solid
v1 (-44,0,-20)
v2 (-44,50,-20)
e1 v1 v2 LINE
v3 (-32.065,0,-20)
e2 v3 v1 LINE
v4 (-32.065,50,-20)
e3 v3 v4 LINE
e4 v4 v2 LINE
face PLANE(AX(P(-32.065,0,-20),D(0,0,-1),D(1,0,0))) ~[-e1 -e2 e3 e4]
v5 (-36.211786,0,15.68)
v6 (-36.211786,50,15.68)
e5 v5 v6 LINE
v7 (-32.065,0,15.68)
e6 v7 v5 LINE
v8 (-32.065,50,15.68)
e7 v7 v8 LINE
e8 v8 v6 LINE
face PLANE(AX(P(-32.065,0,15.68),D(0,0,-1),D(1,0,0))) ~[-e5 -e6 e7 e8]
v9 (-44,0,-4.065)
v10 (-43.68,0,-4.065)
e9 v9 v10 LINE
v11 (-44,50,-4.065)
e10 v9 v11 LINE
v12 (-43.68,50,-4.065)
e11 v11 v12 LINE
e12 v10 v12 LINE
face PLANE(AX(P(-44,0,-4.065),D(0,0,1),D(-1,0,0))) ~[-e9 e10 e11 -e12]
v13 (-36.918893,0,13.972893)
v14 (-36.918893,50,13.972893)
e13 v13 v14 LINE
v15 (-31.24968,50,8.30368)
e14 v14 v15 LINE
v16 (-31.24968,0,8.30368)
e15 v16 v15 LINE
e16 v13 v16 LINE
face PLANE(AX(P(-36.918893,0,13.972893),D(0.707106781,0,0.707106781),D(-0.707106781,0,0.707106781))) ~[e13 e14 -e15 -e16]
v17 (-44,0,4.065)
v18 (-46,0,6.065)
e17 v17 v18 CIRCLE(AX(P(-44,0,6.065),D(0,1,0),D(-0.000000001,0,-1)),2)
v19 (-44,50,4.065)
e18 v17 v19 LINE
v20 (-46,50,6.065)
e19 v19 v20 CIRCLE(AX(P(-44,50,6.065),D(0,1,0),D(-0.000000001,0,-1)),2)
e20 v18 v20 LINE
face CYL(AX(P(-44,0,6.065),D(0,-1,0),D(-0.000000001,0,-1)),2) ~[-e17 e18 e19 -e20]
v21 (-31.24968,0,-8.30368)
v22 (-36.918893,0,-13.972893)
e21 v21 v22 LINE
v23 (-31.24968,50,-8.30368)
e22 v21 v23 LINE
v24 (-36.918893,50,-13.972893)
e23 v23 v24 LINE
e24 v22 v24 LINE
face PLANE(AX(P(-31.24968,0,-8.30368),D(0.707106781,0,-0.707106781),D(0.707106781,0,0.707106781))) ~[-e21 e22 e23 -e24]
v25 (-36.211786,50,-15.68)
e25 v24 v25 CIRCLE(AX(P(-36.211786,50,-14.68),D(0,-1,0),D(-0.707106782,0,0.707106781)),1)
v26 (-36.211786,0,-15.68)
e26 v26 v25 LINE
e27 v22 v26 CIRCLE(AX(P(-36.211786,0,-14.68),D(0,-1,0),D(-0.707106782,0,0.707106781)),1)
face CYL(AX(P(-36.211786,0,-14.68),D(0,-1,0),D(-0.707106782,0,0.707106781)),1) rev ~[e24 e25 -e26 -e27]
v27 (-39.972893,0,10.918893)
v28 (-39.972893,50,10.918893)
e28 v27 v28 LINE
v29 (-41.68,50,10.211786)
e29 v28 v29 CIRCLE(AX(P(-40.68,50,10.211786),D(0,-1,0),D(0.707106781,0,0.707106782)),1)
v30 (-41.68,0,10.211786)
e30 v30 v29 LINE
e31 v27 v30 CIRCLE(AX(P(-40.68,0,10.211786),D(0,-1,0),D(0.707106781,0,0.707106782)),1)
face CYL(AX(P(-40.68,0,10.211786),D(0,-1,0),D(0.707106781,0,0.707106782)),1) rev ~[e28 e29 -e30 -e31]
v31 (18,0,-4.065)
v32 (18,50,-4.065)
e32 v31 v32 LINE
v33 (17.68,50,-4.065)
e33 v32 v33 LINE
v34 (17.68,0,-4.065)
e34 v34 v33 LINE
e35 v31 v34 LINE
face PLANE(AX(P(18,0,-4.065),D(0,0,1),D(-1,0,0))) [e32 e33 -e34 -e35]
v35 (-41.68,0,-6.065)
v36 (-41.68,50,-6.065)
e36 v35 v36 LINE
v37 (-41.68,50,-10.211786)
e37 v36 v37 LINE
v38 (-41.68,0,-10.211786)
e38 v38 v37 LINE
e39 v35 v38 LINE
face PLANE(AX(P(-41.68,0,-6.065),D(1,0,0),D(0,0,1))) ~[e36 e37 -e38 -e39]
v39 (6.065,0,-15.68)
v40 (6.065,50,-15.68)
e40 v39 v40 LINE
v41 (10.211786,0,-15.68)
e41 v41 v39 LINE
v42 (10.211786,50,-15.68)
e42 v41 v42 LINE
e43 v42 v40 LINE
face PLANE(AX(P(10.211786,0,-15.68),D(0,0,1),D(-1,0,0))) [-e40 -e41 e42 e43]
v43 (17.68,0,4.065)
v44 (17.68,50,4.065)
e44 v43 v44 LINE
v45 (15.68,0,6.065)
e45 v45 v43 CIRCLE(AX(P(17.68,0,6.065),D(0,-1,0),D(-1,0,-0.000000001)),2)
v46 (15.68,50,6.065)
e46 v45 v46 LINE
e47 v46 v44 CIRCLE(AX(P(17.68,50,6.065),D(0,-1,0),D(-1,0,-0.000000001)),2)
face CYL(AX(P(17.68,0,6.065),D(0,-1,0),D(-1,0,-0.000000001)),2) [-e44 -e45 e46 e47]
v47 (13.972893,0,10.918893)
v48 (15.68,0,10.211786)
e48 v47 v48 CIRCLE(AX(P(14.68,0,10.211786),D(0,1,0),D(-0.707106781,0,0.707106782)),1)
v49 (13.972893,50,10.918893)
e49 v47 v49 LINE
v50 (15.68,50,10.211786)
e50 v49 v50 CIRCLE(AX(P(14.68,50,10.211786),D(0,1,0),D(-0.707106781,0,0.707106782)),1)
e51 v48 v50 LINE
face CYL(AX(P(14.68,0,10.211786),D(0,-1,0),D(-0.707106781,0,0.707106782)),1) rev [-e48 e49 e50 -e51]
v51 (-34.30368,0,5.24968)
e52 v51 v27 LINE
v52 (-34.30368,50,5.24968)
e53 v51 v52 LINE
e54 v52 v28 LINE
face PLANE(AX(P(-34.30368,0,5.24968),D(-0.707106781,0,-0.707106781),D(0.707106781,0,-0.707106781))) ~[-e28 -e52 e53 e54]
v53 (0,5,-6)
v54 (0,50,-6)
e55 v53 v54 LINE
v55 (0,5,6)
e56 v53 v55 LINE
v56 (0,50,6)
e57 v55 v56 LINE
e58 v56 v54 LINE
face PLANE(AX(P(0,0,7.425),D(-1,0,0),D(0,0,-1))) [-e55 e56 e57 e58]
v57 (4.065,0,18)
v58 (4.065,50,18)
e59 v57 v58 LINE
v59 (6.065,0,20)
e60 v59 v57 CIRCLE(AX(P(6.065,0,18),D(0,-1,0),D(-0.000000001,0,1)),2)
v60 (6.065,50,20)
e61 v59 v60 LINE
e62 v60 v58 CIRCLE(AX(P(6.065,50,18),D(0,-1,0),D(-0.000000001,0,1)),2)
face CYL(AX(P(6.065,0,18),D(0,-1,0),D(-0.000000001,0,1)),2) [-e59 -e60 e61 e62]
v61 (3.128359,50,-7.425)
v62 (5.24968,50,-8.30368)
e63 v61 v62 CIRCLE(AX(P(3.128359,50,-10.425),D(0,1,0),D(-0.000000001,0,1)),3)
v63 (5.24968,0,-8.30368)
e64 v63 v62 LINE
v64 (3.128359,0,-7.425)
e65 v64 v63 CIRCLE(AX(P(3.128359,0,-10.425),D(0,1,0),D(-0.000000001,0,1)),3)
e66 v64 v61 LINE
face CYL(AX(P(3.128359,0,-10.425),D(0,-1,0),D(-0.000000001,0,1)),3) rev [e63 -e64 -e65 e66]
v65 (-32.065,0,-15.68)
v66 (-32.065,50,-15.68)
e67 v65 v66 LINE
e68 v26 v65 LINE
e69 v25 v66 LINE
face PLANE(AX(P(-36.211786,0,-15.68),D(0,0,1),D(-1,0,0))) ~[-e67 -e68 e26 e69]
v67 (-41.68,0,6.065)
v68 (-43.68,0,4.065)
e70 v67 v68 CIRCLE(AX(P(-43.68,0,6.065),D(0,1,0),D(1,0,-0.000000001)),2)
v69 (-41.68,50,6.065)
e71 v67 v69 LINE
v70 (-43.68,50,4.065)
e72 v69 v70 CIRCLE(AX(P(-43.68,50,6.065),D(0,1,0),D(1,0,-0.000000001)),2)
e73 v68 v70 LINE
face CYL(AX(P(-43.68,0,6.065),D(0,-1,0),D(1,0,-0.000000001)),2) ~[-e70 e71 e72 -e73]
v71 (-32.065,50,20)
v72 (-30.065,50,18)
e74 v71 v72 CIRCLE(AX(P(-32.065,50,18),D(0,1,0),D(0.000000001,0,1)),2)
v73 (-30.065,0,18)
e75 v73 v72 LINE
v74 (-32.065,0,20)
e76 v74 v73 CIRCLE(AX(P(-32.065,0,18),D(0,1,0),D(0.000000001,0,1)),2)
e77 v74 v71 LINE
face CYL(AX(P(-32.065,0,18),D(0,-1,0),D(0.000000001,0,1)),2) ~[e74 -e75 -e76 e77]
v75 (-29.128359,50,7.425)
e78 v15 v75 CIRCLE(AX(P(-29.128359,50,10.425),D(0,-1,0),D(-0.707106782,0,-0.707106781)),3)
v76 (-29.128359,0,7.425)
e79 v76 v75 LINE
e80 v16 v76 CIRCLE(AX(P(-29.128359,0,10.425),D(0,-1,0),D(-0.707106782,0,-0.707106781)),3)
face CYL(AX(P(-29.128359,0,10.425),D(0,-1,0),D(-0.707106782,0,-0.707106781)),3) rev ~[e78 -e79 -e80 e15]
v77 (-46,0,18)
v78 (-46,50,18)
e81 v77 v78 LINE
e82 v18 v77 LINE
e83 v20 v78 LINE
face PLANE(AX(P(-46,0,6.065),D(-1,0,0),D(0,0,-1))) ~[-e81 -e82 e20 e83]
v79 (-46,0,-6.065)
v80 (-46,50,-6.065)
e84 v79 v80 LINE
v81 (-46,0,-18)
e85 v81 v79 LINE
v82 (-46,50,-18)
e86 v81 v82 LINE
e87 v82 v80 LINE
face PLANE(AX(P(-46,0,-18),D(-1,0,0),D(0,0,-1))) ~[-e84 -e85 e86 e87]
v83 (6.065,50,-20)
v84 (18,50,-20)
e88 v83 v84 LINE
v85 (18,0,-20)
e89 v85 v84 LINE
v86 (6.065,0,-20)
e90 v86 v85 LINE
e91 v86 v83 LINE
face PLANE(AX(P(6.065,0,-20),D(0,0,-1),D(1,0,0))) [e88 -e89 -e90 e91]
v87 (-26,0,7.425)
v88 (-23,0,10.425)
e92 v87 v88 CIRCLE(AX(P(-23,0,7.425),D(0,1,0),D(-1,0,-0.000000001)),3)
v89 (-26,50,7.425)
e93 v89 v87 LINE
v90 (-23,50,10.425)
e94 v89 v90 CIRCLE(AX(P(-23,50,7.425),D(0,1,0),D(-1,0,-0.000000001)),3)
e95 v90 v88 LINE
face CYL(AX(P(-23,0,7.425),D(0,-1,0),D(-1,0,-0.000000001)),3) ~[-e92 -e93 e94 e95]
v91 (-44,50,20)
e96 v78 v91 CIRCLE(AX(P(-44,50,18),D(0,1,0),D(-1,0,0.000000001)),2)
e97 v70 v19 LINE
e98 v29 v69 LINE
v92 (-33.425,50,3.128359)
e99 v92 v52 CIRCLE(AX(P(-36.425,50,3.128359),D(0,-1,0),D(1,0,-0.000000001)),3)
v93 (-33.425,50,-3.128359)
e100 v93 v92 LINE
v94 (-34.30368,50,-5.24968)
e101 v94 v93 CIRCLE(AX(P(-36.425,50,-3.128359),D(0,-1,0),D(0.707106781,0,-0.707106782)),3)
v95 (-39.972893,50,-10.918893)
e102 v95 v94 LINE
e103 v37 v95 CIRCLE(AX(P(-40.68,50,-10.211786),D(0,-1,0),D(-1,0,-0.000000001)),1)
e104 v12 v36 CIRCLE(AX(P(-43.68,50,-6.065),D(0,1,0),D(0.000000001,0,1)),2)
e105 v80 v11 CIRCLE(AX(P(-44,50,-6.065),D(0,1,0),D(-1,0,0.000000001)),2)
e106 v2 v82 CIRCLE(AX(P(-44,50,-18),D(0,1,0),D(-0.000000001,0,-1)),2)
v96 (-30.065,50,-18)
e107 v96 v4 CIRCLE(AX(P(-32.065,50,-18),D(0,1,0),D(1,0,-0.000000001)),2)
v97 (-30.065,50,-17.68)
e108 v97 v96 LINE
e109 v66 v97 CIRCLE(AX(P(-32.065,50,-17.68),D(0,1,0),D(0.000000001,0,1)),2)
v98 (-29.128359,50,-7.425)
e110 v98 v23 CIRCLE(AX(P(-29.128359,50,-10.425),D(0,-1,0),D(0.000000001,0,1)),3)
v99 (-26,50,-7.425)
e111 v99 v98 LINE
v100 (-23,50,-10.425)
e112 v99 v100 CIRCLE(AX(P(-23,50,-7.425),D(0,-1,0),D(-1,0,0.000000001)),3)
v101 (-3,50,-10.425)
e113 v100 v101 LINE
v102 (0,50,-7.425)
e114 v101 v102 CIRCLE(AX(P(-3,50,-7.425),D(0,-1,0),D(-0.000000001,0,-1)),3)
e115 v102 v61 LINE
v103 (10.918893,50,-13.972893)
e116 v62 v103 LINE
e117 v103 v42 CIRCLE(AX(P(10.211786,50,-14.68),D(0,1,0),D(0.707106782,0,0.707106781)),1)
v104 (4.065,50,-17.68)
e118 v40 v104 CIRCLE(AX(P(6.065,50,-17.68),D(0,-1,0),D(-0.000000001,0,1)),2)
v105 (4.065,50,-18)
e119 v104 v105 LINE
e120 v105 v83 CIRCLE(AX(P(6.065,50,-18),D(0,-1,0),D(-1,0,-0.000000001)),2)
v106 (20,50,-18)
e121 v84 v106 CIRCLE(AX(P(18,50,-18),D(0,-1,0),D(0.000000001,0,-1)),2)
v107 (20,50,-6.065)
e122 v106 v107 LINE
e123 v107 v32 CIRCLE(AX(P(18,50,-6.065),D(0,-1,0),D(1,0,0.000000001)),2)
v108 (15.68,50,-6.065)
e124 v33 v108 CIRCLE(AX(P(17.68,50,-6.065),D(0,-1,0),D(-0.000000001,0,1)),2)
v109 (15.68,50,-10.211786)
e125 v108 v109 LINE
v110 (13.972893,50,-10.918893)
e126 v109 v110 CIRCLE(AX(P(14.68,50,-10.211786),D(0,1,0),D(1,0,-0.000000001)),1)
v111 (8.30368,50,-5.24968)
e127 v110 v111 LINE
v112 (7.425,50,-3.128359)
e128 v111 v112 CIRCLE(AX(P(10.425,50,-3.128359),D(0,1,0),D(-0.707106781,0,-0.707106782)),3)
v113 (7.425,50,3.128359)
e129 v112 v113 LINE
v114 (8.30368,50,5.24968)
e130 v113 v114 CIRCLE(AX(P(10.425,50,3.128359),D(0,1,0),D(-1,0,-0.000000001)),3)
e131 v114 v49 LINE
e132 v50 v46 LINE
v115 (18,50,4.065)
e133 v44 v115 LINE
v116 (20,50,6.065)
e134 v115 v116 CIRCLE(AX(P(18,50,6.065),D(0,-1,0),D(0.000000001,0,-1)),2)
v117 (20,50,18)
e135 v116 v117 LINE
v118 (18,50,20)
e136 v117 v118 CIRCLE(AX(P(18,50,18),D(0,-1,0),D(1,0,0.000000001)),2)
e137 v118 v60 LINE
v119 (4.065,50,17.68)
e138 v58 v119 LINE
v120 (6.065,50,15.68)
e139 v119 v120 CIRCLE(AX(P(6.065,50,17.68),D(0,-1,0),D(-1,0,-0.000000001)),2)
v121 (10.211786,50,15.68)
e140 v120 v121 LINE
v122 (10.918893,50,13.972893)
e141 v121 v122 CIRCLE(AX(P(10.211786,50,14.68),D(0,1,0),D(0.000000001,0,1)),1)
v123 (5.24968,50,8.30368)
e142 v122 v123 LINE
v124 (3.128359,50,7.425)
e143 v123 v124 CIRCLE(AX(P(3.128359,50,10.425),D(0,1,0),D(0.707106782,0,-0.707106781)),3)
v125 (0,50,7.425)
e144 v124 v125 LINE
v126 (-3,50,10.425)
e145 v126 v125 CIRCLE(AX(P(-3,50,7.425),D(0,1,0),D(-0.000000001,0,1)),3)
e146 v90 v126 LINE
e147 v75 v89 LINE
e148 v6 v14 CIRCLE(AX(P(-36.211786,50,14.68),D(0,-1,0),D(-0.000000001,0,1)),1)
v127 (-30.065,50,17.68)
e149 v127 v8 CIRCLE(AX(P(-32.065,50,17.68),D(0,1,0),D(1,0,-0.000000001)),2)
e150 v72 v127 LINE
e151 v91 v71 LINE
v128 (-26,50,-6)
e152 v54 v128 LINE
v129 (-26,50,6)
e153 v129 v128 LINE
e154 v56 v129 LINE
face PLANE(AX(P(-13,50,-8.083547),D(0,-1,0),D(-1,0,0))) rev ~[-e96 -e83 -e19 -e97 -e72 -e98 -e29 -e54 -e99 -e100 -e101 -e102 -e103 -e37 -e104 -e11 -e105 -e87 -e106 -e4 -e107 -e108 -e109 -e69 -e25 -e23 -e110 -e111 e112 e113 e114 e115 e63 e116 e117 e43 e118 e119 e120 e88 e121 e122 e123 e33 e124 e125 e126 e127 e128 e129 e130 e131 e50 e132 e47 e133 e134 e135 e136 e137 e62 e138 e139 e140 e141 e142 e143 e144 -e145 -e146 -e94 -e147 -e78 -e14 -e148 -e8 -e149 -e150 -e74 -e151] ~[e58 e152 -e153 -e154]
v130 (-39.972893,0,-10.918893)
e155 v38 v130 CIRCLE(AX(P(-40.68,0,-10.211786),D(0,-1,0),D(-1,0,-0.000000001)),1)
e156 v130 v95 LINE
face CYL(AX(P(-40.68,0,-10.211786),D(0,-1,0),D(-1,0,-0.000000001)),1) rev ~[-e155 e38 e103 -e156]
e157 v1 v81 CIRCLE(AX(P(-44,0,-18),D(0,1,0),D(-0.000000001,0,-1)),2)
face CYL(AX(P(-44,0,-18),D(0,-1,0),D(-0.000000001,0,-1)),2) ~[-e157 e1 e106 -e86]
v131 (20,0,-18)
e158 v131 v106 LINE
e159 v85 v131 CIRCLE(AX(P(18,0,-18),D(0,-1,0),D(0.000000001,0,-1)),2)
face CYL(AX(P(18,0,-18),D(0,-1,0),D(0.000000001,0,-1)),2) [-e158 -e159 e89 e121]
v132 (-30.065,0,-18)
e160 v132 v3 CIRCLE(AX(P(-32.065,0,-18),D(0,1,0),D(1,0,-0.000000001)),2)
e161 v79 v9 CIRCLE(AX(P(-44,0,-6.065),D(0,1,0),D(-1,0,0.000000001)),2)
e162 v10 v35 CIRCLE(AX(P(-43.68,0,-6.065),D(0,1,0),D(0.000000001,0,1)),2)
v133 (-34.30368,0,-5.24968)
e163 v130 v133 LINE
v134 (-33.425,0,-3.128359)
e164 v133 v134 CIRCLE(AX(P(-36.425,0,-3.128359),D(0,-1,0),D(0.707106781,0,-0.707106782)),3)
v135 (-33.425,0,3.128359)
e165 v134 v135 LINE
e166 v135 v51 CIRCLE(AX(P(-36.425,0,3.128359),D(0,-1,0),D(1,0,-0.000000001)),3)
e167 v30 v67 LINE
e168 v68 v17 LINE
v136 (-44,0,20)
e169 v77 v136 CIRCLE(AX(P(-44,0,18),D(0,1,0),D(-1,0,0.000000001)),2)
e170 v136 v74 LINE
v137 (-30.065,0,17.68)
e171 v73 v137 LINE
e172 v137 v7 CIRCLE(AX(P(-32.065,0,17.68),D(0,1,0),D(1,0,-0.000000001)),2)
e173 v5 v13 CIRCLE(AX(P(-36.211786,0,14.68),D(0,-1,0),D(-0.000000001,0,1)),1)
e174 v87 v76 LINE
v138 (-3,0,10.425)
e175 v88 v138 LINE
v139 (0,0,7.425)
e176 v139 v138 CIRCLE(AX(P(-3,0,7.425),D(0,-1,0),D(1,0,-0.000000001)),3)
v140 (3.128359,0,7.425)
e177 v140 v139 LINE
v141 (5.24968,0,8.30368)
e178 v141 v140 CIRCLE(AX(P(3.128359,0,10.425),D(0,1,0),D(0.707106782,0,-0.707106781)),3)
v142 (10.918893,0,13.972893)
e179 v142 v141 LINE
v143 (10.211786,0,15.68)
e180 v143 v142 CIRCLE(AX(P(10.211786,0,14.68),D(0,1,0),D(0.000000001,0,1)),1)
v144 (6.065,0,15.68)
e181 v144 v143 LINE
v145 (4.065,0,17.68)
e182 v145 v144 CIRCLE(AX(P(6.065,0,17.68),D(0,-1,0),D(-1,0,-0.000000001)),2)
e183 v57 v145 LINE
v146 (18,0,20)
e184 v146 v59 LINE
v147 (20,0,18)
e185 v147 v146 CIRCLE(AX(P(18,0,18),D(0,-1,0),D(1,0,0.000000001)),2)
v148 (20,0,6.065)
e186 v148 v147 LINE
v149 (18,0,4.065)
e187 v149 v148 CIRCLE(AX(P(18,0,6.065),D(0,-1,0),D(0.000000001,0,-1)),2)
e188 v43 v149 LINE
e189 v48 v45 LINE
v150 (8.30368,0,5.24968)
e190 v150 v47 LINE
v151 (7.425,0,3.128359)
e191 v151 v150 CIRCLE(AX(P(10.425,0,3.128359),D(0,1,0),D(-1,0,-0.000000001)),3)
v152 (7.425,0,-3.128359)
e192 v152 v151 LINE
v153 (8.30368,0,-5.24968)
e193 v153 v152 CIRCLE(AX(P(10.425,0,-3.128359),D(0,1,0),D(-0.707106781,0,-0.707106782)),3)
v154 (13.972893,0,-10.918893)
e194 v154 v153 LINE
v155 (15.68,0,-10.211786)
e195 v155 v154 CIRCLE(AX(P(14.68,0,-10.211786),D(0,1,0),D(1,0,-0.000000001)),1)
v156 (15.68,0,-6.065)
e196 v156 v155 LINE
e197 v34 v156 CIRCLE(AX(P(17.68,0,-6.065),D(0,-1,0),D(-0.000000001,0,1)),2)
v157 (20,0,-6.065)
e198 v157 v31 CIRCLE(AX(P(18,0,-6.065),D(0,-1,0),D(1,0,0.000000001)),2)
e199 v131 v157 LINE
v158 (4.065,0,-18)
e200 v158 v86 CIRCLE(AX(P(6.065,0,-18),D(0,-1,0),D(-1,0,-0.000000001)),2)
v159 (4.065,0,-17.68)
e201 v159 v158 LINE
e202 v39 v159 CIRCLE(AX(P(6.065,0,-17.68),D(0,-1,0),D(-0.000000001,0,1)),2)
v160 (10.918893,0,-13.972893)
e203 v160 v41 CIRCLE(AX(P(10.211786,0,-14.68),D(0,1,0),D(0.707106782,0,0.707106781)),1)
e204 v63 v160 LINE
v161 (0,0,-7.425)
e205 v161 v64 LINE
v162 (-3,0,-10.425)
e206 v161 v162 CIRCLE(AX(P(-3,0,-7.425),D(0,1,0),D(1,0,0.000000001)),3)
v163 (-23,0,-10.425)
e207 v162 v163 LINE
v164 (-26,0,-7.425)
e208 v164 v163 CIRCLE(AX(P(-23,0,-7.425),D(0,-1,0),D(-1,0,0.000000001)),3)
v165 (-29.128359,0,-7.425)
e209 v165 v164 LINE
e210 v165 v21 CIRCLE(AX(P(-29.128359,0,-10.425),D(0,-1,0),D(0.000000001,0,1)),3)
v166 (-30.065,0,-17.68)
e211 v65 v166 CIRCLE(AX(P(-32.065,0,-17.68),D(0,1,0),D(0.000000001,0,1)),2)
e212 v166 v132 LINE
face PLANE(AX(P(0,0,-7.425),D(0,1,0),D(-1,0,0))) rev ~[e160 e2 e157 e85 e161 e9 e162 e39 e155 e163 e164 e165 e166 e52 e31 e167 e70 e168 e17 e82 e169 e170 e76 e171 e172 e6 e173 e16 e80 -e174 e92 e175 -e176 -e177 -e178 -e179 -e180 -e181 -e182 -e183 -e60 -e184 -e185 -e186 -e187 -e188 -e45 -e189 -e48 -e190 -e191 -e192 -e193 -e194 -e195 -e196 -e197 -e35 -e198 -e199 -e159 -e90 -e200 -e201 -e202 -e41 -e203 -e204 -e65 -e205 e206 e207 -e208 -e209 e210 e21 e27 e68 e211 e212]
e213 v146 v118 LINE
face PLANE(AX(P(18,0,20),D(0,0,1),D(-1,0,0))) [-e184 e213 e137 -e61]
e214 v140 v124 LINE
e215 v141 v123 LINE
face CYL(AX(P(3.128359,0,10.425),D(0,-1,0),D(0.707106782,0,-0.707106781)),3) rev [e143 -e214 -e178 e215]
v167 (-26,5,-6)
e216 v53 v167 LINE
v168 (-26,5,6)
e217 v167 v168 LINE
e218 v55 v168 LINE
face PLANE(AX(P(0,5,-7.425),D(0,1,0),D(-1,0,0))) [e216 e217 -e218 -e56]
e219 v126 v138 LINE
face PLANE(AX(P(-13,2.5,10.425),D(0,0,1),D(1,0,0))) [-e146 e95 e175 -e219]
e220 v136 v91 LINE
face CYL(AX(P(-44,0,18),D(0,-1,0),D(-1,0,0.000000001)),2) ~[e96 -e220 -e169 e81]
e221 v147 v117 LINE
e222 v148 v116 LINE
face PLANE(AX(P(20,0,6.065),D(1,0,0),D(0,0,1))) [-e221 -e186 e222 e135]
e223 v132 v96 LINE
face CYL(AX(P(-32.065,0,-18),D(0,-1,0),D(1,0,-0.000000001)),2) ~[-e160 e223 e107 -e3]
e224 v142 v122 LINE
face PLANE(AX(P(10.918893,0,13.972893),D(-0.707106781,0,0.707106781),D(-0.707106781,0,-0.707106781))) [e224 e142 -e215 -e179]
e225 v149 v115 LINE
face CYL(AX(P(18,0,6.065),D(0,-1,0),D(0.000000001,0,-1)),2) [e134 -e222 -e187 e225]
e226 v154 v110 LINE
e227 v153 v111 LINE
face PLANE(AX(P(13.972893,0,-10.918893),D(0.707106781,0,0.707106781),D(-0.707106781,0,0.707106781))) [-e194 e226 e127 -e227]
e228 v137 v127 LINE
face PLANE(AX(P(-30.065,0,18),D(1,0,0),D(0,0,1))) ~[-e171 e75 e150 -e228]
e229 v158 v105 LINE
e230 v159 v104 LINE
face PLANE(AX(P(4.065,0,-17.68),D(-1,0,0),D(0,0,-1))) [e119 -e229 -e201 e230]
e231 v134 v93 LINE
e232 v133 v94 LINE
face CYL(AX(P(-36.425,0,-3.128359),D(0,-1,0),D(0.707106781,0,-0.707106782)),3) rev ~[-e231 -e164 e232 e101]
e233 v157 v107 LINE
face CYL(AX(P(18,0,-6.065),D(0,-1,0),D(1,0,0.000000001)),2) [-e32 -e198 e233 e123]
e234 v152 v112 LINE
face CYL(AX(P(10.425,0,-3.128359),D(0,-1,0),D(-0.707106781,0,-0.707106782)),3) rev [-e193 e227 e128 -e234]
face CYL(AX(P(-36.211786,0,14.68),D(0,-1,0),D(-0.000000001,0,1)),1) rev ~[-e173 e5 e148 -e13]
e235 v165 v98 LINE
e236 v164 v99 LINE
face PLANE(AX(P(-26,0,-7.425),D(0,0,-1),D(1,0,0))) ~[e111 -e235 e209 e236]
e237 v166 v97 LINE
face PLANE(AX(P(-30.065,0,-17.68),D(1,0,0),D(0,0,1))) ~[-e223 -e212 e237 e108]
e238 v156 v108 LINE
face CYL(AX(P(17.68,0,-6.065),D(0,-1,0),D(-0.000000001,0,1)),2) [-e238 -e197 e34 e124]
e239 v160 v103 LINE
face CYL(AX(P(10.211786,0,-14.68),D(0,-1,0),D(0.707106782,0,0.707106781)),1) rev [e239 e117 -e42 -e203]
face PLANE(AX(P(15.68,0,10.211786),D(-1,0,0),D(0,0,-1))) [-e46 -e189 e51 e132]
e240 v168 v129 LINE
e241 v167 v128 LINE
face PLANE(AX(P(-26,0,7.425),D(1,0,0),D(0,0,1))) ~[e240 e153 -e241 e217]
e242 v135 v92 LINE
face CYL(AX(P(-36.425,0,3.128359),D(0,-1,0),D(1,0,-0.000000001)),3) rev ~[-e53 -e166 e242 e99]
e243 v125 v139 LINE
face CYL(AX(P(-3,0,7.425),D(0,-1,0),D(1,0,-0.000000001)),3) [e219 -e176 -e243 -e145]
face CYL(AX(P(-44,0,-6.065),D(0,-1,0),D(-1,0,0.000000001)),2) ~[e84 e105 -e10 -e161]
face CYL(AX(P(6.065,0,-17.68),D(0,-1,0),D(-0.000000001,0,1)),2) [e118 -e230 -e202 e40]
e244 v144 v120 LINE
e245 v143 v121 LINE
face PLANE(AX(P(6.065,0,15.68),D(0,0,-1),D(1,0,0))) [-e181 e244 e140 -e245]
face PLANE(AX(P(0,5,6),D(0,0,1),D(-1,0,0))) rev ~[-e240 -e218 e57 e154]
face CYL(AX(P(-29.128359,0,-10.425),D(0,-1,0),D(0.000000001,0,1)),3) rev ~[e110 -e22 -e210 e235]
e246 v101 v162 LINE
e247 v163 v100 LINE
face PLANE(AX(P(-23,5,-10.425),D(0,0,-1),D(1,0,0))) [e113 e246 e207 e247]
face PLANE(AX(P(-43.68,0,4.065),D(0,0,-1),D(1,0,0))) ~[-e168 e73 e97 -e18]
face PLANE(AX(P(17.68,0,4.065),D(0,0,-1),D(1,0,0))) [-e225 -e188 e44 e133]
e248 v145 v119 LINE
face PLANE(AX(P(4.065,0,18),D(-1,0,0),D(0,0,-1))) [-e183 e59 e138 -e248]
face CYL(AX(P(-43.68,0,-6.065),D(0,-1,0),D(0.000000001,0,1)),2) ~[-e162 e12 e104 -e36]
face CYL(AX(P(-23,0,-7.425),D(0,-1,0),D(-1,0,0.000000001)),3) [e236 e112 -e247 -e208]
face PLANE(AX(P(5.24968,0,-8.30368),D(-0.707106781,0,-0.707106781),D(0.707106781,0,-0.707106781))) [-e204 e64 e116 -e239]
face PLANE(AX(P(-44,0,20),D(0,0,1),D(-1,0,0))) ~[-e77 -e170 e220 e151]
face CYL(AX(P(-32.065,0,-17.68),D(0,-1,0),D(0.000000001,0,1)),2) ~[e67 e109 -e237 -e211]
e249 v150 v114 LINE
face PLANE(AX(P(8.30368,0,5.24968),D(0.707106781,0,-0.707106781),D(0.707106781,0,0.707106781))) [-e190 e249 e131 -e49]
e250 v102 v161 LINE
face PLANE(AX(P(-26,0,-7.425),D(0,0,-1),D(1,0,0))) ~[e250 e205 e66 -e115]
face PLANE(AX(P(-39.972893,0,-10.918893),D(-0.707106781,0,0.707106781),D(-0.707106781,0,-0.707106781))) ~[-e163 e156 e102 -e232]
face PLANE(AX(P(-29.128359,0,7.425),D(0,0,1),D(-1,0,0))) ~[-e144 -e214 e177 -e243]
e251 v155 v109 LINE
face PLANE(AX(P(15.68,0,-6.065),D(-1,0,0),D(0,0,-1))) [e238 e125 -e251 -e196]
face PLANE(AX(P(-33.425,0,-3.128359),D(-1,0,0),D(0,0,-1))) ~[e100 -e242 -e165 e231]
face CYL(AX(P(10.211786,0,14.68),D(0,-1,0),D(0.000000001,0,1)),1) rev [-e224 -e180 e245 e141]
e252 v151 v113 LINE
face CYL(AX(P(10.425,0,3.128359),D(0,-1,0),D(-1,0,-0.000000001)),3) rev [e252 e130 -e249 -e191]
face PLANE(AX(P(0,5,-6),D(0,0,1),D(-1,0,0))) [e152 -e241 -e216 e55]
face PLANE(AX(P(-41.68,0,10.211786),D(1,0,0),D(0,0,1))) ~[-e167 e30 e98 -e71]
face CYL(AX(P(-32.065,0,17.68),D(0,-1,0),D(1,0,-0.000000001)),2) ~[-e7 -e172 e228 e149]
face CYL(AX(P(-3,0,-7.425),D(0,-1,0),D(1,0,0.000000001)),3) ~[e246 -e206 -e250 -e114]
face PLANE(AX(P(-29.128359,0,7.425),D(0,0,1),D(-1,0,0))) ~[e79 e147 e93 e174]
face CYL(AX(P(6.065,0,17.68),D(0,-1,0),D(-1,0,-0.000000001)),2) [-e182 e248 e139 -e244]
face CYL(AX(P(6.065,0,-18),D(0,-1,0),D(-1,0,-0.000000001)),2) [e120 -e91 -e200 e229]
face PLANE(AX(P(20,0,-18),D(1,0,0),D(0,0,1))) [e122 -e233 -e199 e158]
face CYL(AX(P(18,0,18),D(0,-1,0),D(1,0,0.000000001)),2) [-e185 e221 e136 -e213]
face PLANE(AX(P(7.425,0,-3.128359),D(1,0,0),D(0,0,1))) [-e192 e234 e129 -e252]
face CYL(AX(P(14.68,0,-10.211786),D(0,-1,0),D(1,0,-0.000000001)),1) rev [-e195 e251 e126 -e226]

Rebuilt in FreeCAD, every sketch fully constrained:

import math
import FreeCAD as App
import Part
import Sketcher
Q = App.Units.Quantity

doc = App.newDocument("Part")
body = doc.addObject("PartDesign::Body", "Body")

# Sketch on XZ plane
sketch1 = body.newObject("Sketcher::SketchObject", "Sketch")
sketch1.AttachmentSupport = (doc.getObject("XZ_Plane"), [""])
sketch1.MapMode = "FlatFace"
sketch1.addGeometry(Part.LineSegment(App.Vector(10.92, -13.97, 0), App.Vector(5.25, -8.3, 0)), False)
sketch1.addGeometry(Part.ArcOfCircle(Part.Circle(App.Vector(3.13, -10.42, 0), App.Vector(0, 0, 1), 3), math.radians(45), math.radians(90)), False)
sketch1.addGeometry(Part.LineSegment(App.Vector(3.13, -7.42, 0), App.Vector(0, -7.42, 0)), False)
sketch1.addGeometry(Part.LineSegment(App.Vector(0, -7.42, 0), App.Vector(0, 7.42, 0)), False)
sketch1.addGeometry(Part.LineSegment(App.Vector(0, 7.42, 0), App.Vector(3.13, 7.42, 0)), False)
sketch1.addGeometry(Part.ArcOfCircle(Part.Circle(App.Vector(3.13, 10.42, 0), App.Vector(0, 0, 1), 3), math.radians(-90), math.radians(-45)), False)
sketch1.addGeometry(Part.LineSegment(App.Vector(5.25, 8.3, 0), App.Vector(10.92, 13.97, 0)), False)
sketch1.addGeometry(Part.ArcOfCircle(Part.Circle(App.Vector(10.21, 14.68, 0), App.Vector(0, 0, 1), 1), math.radians(-45), math.radians(90)), False)
sketch1.addGeometry(Part.LineSegment(App.Vector(10.21, 15.68, 0), App.Vector(6.07, 15.68, 0)), False)
sketch1.addGeometry(Part.ArcOfCircle(Part.Circle(App.Vector(6.07, 17.68, 0), App.Vector(0, 0, 1), 2), math.radians(-180), math.radians(-90)), False)
sketch1.addGeometry(Part.LineSegment(App.Vector(4.07, 17.68, 0), App.Vector(4.07, 18, 0)), False)
sketch1.addGeometry(Part.ArcOfCircle(Part.Circle(App.Vector(6.07, 18, 0), App.Vector(0, 0, 1), 2), math.radians(90), math.radians(180)), False)
sketch1.addGeometry(Part.LineSegment(App.Vector(6.07, 20, 0), App.Vector(18, 20, 0)), False)
sketch1.addGeometry(Part.ArcOfCircle(Part.Circle(App.Vector(18, 18, 0), App.Vector(0, 0, 1), 2), math.radians(0), math.radians(90)), False)
sketch1.addGeometry(Part.LineSegment(App.Vector(20, 18, 0), App.Vector(20, 6.07, 0)), False)
sketch1.addGeometry(Part.ArcOfCircle(Part.Circle(App.Vector(18, 6.07, 0), App.Vector(0, 0, 1), 2), math.radians(-90), math.radians(0)), False)
sketch1.addGeometry(Part.LineSegment(App.Vector(18, 4.07, 0), App.Vector(17.68, 4.07, 0)), False)
sketch1.addGeometry(Part.ArcOfCircle(Part.Circle(App.Vector(17.68, 6.07, 0), App.Vector(0, 0, 1), 2), math.radians(-180), math.radians(-90)), False)
sketch1.addGeometry(Part.LineSegment(App.Vector(15.68, 6.07, 0), App.Vector(15.68, 10.21, 0)), False)
sketch1.addGeometry(Part.ArcOfCircle(Part.Circle(App.Vector(14.68, 10.21, 0), App.Vector(0, 0, 1), 1), math.radians(0), math.radians(135)), False)
sketch1.addGeometry(Part.LineSegment(App.Vector(13.97, 10.92, 0), App.Vector(8.3, 5.25, 0)), False)
sketch1.addGeometry(Part.ArcOfCircle(Part.Circle(App.Vector(10.42, 3.13, 0), App.Vector(0, 0, 1), 3), math.radians(135), math.radians(180)), False)
sketch1.addGeometry(Part.LineSegment(App.Vector(7.42, 3.13, 0), App.Vector(7.42, -3.13, 0)), False)
sketch1.addGeometry(Part.ArcOfCircle(Part.Circle(App.Vector(10.42, -3.13, 0), App.Vector(0, 0, 1), 3), math.radians(180), math.radians(225)), False)
sketch1.addGeometry(Part.LineSegment(App.Vector(8.3, -5.25, 0), App.Vector(13.97, -10.92, 0)), False)
sketch1.addGeometry(Part.ArcOfCircle(Part.Circle(App.Vector(14.68, -10.21, 0), App.Vector(0, 0, 1), 1), math.radians(-135), math.radians(0)), False)
sketch1.addGeometry(Part.LineSegment(App.Vector(15.68, -10.21, 0), App.Vector(15.68, -6.07, 0)), False)
sketch1.addGeometry(Part.ArcOfCircle(Part.Circle(App.Vector(17.68, -6.07, 0), App.Vector(0, 0, 1), 2), math.radians(90), math.radians(180)), False)
sketch1.addGeometry(Part.LineSegment(App.Vector(17.68, -4.07, 0), App.Vector(18, -4.07, 0)), False)
sketch1.addGeometry(Part.ArcOfCircle(Part.Circle(App.Vector(18, -6.07, 0), App.Vector(0, 0, 1), 2), math.radians(0), math.radians(90)), False)
sketch1.addGeometry(Part.LineSegment(App.Vector(20, -6.07, 0), App.Vector(20, -18, 0)), False)
sketch1.addGeometry(Part.ArcOfCircle(Part.Circle(App.Vector(18, -18, 0), App.Vector(0, 0, 1), 2), math.radians(-90), math.radians(0)), False)
sketch1.addGeometry(Part.LineSegment(App.Vector(18, -20, 0), App.Vector(6.07, -20, 0)), False)
sketch1.addGeometry(Part.ArcOfCircle(Part.Circle(App.Vector(6.07, -18, 0), App.Vector(0, 0, 1), 2), math.radians(-180), math.radians(-90)), False)
sketch1.addGeometry(Part.LineSegment(App.Vector(4.07, -18, 0), App.Vector(4.07, -17.68, 0)), False)
sketch1.addGeometry(Part.ArcOfCircle(Part.Circle(App.Vector(6.07, -17.68, 0), App.Vector(0, 0, 1), 2), math.radians(90), math.radians(180)), False)
sketch1.addGeometry(Part.LineSegment(App.Vector(6.07, -15.68, 0), App.Vector(10.21, -15.68, 0)), False)
sketch1.addGeometry(Part.ArcOfCircle(Part.Circle(App.Vector(10.21, -14.68, 0), App.Vector(0, 0, 1), 1), math.radians(-90), math.radians(45)), False)
sketch1.addConstraint(Sketcher.Constraint("Tangent", 0, 2, 1, 1))
sketch1.addConstraint(Sketcher.Constraint("Tangent", 1, 2, 2, 1))
sketch1.addConstraint(Sketcher.Constraint("Coincident", 2, 2, 3, 1))
sketch1.addConstraint(Sketcher.Constraint("Coincident", 3, 2, 4, 1))
sketch1.addConstraint(Sketcher.Constraint("Tangent", 4, 2, 5, 1))
sketch1.addConstraint(Sketcher.Constraint("Tangent", 5, 2, 6, 1))
sketch1.addConstraint(Sketcher.Constraint("Tangent", 6, 2, 7, 1))
sketch1.addConstraint(Sketcher.Constraint("Tangent", 7, 2, 8, 1))
sketch1.addConstraint(Sketcher.Constraint("Tangent", 8, 2, 9, 2))
sketch1.addConstraint(Sketcher.Constraint("Tangent", 9, 1, 10, 1))
sketch1.addConstraint(Sketcher.Constraint("Tangent", 10, 2, 11, 2))
sketch1.addConstraint(Sketcher.Constraint("Tangent", 11, 1, 12, 1))
sketch1.addConstraint(Sketcher.Constraint("Tangent", 12, 2, 13, 2))
sketch1.addConstraint(Sketcher.Constraint("Tangent", 13, 1, 14, 1))
sketch1.addConstraint(Sketcher.Constraint("Tangent", 14, 2, 15, 2))
sketch1.addConstraint(Sketcher.Constraint("Tangent", 15, 1, 16, 1))
sketch1.addConstraint(Sketcher.Constraint("Tangent", 16, 2, 17, 2))
sketch1.addConstraint(Sketcher.Constraint("Tangent", 17, 1, 18, 1))
sketch1.addConstraint(Sketcher.Constraint("Tangent", 18, 2, 19, 1))
sketch1.addConstraint(Sketcher.Constraint("Tangent", 19, 2, 20, 1))
sketch1.addConstraint(Sketcher.Constraint("Tangent", 20, 2, 21, 1))
sketch1.addConstraint(Sketcher.Constraint("Tangent", 21, 2, 22, 1))
sketch1.addConstraint(Sketcher.Constraint("Tangent", 22, 2, 23, 1))
sketch1.addConstraint(Sketcher.Constraint("Tangent", 23, 2, 24, 1))
sketch1.addConstraint(Sketcher.Constraint("Tangent", 24, 2, 25, 1))
sketch1.addConstraint(Sketcher.Constraint("Tangent", 25, 2, 26, 1))
sketch1.addConstraint(Sketcher.Constraint("Tangent", 26, 2, 27, 2))
sketch1.addConstraint(Sketcher.Constraint("Tangent", 27, 1, 28, 1))
sketch1.addConstraint(Sketcher.Constraint("Tangent", 28, 2, 29, 2))
sketch1.addConstraint(Sketcher.Constraint("Tangent", 29, 1, 30, 1))
sketch1.addConstraint(Sketcher.Constraint("Tangent", 30, 2, 31, 2))
sketch1.addConstraint(Sketcher.Constraint("Tangent", 31, 1, 32, 1))
sketch1.addConstraint(Sketcher.Constraint("Tangent", 32, 2, 33, 2))
sketch1.addConstraint(Sketcher.Constraint("Tangent", 33, 1, 34, 1))
sketch1.addConstraint(Sketcher.Constraint("Tangent", 34, 2, 35, 2))
sketch1.addConstraint(Sketcher.Constraint("Tangent", 35, 1, 36, 1))
sketch1.addConstraint(Sketcher.Constraint("Tangent", 36, 2, 37, 1))
sketch1.addConstraint(Sketcher.Constraint("Tangent", 37, 2, 0, 1))
sketch1.addConstraint(Sketcher.Constraint("Horizontal", 2))
sketch1.addConstraint(Sketcher.Constraint("Vertical", 3))
sketch1.addConstraint(Sketcher.Constraint("Horizontal", 4))
sketch1.addConstraint(Sketcher.Constraint("Horizontal", 8))
sketch1.addConstraint(Sketcher.Constraint("Vertical", 10))
sketch1.addConstraint(Sketcher.Constraint("Horizontal", 12))
sketch1.addConstraint(Sketcher.Constraint("Vertical", 14))
sketch1.addConstraint(Sketcher.Constraint("Horizontal", 16))
sketch1.addConstraint(Sketcher.Constraint("Vertical", 18))
sketch1.addConstraint(Sketcher.Constraint("Vertical", 22))
sketch1.addConstraint(Sketcher.Constraint("Vertical", 26))
sketch1.addConstraint(Sketcher.Constraint("Horizontal", 28))
sketch1.addConstraint(Sketcher.Constraint("Vertical", 30))
sketch1.addConstraint(Sketcher.Constraint("Horizontal", 32))
sketch1.addConstraint(Sketcher.Constraint("Vertical", 34))
sketch1.addConstraint(Sketcher.Constraint("Horizontal", 36))
sketch1.addConstraint(Sketcher.Constraint("Equal", 1, 5))
sketch1.addConstraint(Sketcher.Constraint("Equal", 9, 11))
sketch1.addConstraint(Sketcher.Constraint("Equal", 11, 13))
sketch1.addConstraint(Sketcher.Constraint("Equal", 13, 15))
sketch1.addConstraint(Sketcher.Constraint("Equal", 15, 17))
sketch1.addConstraint(Sketcher.Constraint("Equal", 7, 19))
sketch1.addConstraint(Sketcher.Constraint("Equal", 5, 21))
sketch1.addConstraint(Sketcher.Constraint("Equal", 21, 23))
sketch1.addConstraint(Sketcher.Constraint("Equal", 19, 25))
sketch1.addConstraint(Sketcher.Constraint("Equal", 17, 27))
sketch1.addConstraint(Sketcher.Constraint("Equal", 27, 29))
sketch1.addConstraint(Sketcher.Constraint("Equal", 29, 31))
sketch1.addConstraint(Sketcher.Constraint("Equal", 31, 33))
sketch1.addConstraint(Sketcher.Constraint("Equal", 33, 35))
sketch1.addConstraint(Sketcher.Constraint("Equal", 25, 37))
sketch1.addConstraint(Sketcher.Constraint("Symmetric", 2, 2, 3, 2, -1, 1))
sketch1.addConstraint(Sketcher.Constraint("Symmetric", 19, 3, 25, 3, -1))
sketch1.addConstraint(Sketcher.Constraint("Symmetric", 15, 3, 29, 3, -1))
sketch1.addConstraint(Sketcher.Constraint("Symmetric", 11, 3, 33, 3, -1))
sketch1.addConstraint(Sketcher.Constraint("Symmetric", 7, 3, 37, 3, -1))
sketch1.addConstraint(Sketcher.Constraint("Perpendicular", 0, 6))
sketch1.addConstraint(Sketcher.Constraint("Parallel", 6, 20))
sketch1.addConstraint(Sketcher.Constraint("Perpendicular", 20, 24))
sketch1.addConstraint(Sketcher.Constraint("Vertical", 1, 3, 5, 3))
sketch1.addConstraint(Sketcher.Constraint("Equal", 28, 10))
sketch1.addConstraint(Sketcher.Constraint("Equal", 32, 14))
sketch1.addConstraint(Sketcher.Constraint("Equal", 36, 18))
sketch1.addConstraint(Sketcher.Constraint("Equal", 6, 20))
sketch1.addConstraint(Sketcher.Constraint("Radius", 1, Q("3 mm")))
sketch1.addConstraint(Sketcher.Constraint("Radius", 7, Q("1 mm")))
sketch1.addConstraint(Sketcher.Constraint("Radius", 9, Q("2 mm")))
sketch1.addConstraint(Sketcher.Constraint("DistanceY", -1, 1, 11, 3, Q("18 mm")))
sketch1.addConstraint(Sketcher.Constraint("DistanceX", -1, 1, 13, 3, Q("18 mm")))
sketch1.addConstraint(Sketcher.Constraint("DistanceX", 16, 2, 16, 1, Q("0.32 mm")))
sketch1.addConstraint(Sketcher.Constraint("DistanceY", 3, 1, 3, 2, Q("14.85 mm")))
sketch1.addConstraint(Sketcher.Constraint("DistanceX", 12, 1, 12, 2, Q("11.935 mm")))
sketch1.addConstraint(Sketcher.Constraint("DistanceX", 6, 2, 19, 2, Q("3.054 mm")))
pad1 = body.newObject("PartDesign::Pad", "Pad")
pad1.Profile = sketch1
pad1.Length = 50
pad1.Reversed = True

# Sketch on YZ plane
sketch2 = body.newObject("Sketcher::SketchObject", "Sketch001")
sketch2.AttachmentSupport = (doc.getObject("YZ_Plane"), [""])
sketch2.MapMode = "FlatFace"
sketch2.addGeometry(Part.LineSegment(App.Vector(5, -7, 0), App.Vector(0, -7, 0)), False)
sketch2.addGeometry(Part.LineSegment(App.Vector(0, -7, 0), App.Vector(0, 7, 0)), False)
sketch2.addGeometry(Part.LineSegment(App.Vector(0, 7, 0), App.Vector(5, 7, 0)), False)
sketch2.addGeometry(Part.LineSegment(App.Vector(5, 7, 0), App.Vector(5, -7, 0)), False)
sketch2.addConstraint(Sketcher.Constraint("Coincident", 0, 2, 1, 1))
sketch2.addConstraint(Sketcher.Constraint("Coincident", 1, 2, 2, 1))
sketch2.addConstraint(Sketcher.Constraint("Coincident", 2, 2, 3, 1))
sketch2.addConstraint(Sketcher.Constraint("Coincident", 3, 2, 0, 1))
sketch2.addConstraint(Sketcher.Constraint("Horizontal", 0))
sketch2.addConstraint(Sketcher.Constraint("Vertical", 1))
sketch2.addConstraint(Sketcher.Constraint("Horizontal", 2))
sketch2.addConstraint(Sketcher.Constraint("Vertical", 3))
sketch2.addConstraint(Sketcher.Constraint("Symmetric", 0, 2, 1, 2, -1, 1))
sketch2.addConstraint(Sketcher.Constraint("DistanceX", 0, 2, 0, 1, Q("5 mm")))
sketch2.addConstraint(Sketcher.Constraint("DistanceY", 1, 1, 1, 2, Q("14.85 mm")))
pad2 = body.newObject("PartDesign::Pad", "Pad001")
pad2.Profile = sketch2
pad2.Length = 26
pad2.Reversed = True
doc.recompute()

datumplane = body.newObject("PartDesign::Plane", "DatumPlane")
datumplane.AttachmentSupport = (doc.getObject("YZ_Plane"), [""])
datumplane.MapMode = "FlatFace"
datumplane.AttachmentOffset = App.Placement(App.Vector(0, 0, -13), App.Rotation())
mirrored = body.newObject("PartDesign::Mirrored", "Mirrored")
mirrored.Originals = [pad1]
mirrored.MirrorPlane = (datumplane, [""])
body.Tip = mirrored

# Sketch on XY plane
sketch3 = body.newObject("Sketcher::SketchObject", "Sketch002")
sketch3.AttachmentSupport = (doc.getObject("XY_Plane"), [""])
sketch3.MapMode = "FlatFace"
sketch3.AttachmentOffset = App.Placement(App.Vector(0, 0, 7.425), App.Rotation())
sketch3.addGeometry(Part.LineSegment(App.Vector(-26, 5, 0), App.Vector(-26, 0, 0)), False)
sketch3.addGeometry(Part.LineSegment(App.Vector(-26, 0, 0), App.Vector(0, 0, 0)), False)
sketch3.addGeometry(Part.LineSegment(App.Vector(0, 0, 0), App.Vector(0, 5, 0)), False)
sketch3.addGeometry(Part.LineSegment(App.Vector(0, 5, 0), App.Vector(-26, 5, 0)), False)
sketch3.addConstraint(Sketcher.Constraint("Coincident", 0, 2, 1, 1))
sketch3.addConstraint(Sketcher.Constraint("Coincident", 1, 2, 2, 1))
sketch3.addConstraint(Sketcher.Constraint("Coincident", 2, 2, 3, 1))
sketch3.addConstraint(Sketcher.Constraint("Coincident", 3, 2, 0, 1))
sketch3.addConstraint(Sketcher.Constraint("Vertical", 0))
sketch3.addConstraint(Sketcher.Constraint("Horizontal", 1))
sketch3.addConstraint(Sketcher.Constraint("Vertical", 2))
sketch3.addConstraint(Sketcher.Constraint("Horizontal", 3))
sketch3.addConstraint(Sketcher.Constraint("Coincident", 1, 2, -1, 1))
sketch3.addConstraint(Sketcher.Constraint("DistanceX", 1, 1, 1, 2, Q("26 mm")))
sketch3.addConstraint(Sketcher.Constraint("DistanceY", 0, 2, 0, 1, Q("5 mm")))
pad3 = body.newObject("PartDesign::Pad", "Pad002")
pad3.Profile = sketch3
pad3.Length = 3

# Sketch on XY plane
sketch4 = body.newObject("Sketcher::SketchObject", "Sketch003")
sketch4.AttachmentSupport = (doc.getObject("XY_Plane"), [""])
sketch4.MapMode = "FlatFace"
sketch4.AttachmentOffset = App.Placement(App.Vector(0, 0, -7.425), App.Rotation())
sketch4.addGeometry(Part.LineSegment(App.Vector(0, 5, 0), App.Vector(0, 0, 0)), False)
sketch4.addGeometry(Part.LineSegment(App.Vector(0, 0, 0), App.Vector(-26, 0, 0)), False)
sketch4.addGeometry(Part.LineSegment(App.Vector(-26, 0, 0), App.Vector(-26, 5, 0)), False)
sketch4.addGeometry(Part.LineSegment(App.Vector(-26, 5, 0), App.Vector(0, 5, 0)), False)
sketch4.addConstraint(Sketcher.Constraint("Coincident", 0, 2, 1, 1))
sketch4.addConstraint(Sketcher.Constraint("Coincident", 1, 2, 2, 1))
sketch4.addConstraint(Sketcher.Constraint("Coincident", 2, 2, 3, 1))
sketch4.addConstraint(Sketcher.Constraint("Coincident", 3, 2, 0, 1))
sketch4.addConstraint(Sketcher.Constraint("Vertical", 0))
sketch4.addConstraint(Sketcher.Constraint("Horizontal", 1))
sketch4.addConstraint(Sketcher.Constraint("Vertical", 2))
sketch4.addConstraint(Sketcher.Constraint("Horizontal", 3))
sketch4.addConstraint(Sketcher.Constraint("Coincident", 0, 2, -1, 1))
sketch4.addConstraint(Sketcher.Constraint("DistanceX", 1, 2, 1, 1, Q("26 mm")))
sketch4.addConstraint(Sketcher.Constraint("DistanceY", 0, 2, 0, 1, Q("5 mm")))
pad4 = body.newObject("PartDesign::Pad", "Pad003")
pad4.Profile = sketch4
pad4.Length = 3
pad4.Reversed = True

# Sketch on XZ plane
sketch5 = body.newObject("Sketcher::SketchObject", "Sketch004")
sketch5.AttachmentSupport = (doc.getObject("XZ_Plane"), [""])
sketch5.MapMode = "FlatFace"
sketch5.AttachmentOffset = App.Placement(App.Vector(0, 0, -5), App.Rotation())
sketch5.addGeometry(Part.LineSegment(App.Vector(-3, -10.4, 0), App.Vector(-23, -10.4, 0)), False)
sketch5.addGeometry(Part.ArcOfCircle(Part.Circle(App.Vector(-23, -7.4, 0), App.Vector(0, 0, 1), 3), math.radians(180), math.radians(270)), False)
sketch5.addGeometry(Part.LineSegment(App.Vector(-26, -7.4, 0), App.Vector(-26, -6, 0)), False)
sketch5.addGeometry(Part.LineSegment(App.Vector(-26, -6, 0), App.Vector(0, -6, 0)), False)
sketch5.addGeometry(Part.LineSegment(App.Vector(0, -6, 0), App.Vector(0, -7.4, 0)), False)
sketch5.addGeometry(Part.ArcOfCircle(Part.Circle(App.Vector(-3, -7.4, 0), App.Vector(0, 0, 1), 3), math.radians(-90), math.radians(0)), False)
sketch5.addGeometry(Part.LineSegment(App.Vector(0, 7.4, 0), App.Vector(0, 6, 0)), False)
sketch5.addGeometry(Part.LineSegment(App.Vector(0, 6, 0), App.Vector(-26, 6, 0)), False)
sketch5.addGeometry(Part.LineSegment(App.Vector(-26, 6, 0), App.Vector(-26, 7.4, 0)), False)
sketch5.addGeometry(Part.ArcOfCircle(Part.Circle(App.Vector(-23, 7.4, 0), App.Vector(0, 0, 1), 3), math.radians(90), math.radians(180)), False)
sketch5.addGeometry(Part.LineSegment(App.Vector(-23, 10.4, 0), App.Vector(-3, 10.4, 0)), False)
sketch5.addGeometry(Part.ArcOfCircle(Part.Circle(App.Vector(-3, 7.4, 0), App.Vector(0, 0, 1), 3), math.radians(0), math.radians(90)), False)
sketch5.addConstraint(Sketcher.Constraint("Tangent", 0, 2, 1, 2))
sketch5.addConstraint(Sketcher.Constraint("Tangent", 1, 1, 2, 1))
sketch5.addConstraint(Sketcher.Constraint("Coincident", 2, 2, 3, 1))
sketch5.addConstraint(Sketcher.Constraint("Coincident", 3, 2, 4, 1))
sketch5.addConstraint(Sketcher.Constraint("Tangent", 4, 2, 5, 2))
sketch5.addConstraint(Sketcher.Constraint("Tangent", 5, 1, 0, 1))
sketch5.addConstraint(Sketcher.Constraint("Coincident", 6, 2, 7, 1))
sketch5.addConstraint(Sketcher.Constraint("Coincident", 7, 2, 8, 1))
sketch5.addConstraint(Sketcher.Constraint("Tangent", 8, 2, 9, 2))
sketch5.addConstraint(Sketcher.Constraint("Tangent", 9, 1, 10, 1))
sketch5.addConstraint(Sketcher.Constraint("Tangent", 10, 2, 11, 2))
sketch5.addConstraint(Sketcher.Constraint("Tangent", 11, 1, 6, 1))
sketch5.addConstraint(Sketcher.Constraint("Horizontal", 0))
sketch5.addConstraint(Sketcher.Constraint("Vertical", 2))
sketch5.addConstraint(Sketcher.Constraint("Horizontal", 3))
sketch5.addConstraint(Sketcher.Constraint("Vertical", 4))
sketch5.addConstraint(Sketcher.Constraint("Vertical", 6))
sketch5.addConstraint(Sketcher.Constraint("Horizontal", 7))
sketch5.addConstraint(Sketcher.Constraint("Vertical", 8))
sketch5.addConstraint(Sketcher.Constraint("Horizontal", 10))
sketch5.addConstraint(Sketcher.Constraint("Equal", 1, 5))
sketch5.addConstraint(Sketcher.Constraint("Equal", 5, 9))
sketch5.addConstraint(Sketcher.Constraint("Equal", 9, 11))
sketch5.addConstraint(Sketcher.Constraint("Symmetric", 3, 2, 6, 2, -1, 1))
sketch5.addConstraint(Sketcher.Constraint("Symmetric", 1, 3, 9, 3, -1))
sketch5.addConstraint(Sketcher.Constraint("PointOnObject", 3, 2, -2))
sketch5.addConstraint(Sketcher.Constraint("Radius", 1, Q("3 mm")))
sketch5.addConstraint(Sketcher.Constraint("DistanceX", 0, 2, 0, 1, Q("20 mm")))
sketch5.addConstraint(Sketcher.Constraint("DistanceY", 2, 2, -1, 1, Q("6 mm")))
sketch5.addConstraint(Sketcher.Constraint("DistanceY", 2, 1, 2, 2, Q("1.425 mm")))
pad5 = body.newObject("PartDesign::Pad", "Pad004")
pad5.Profile = sketch5
pad5.Length = 45
pad5.Reversed = True

# Sketch on XZ plane
sketch6 = body.newObject("Sketcher::SketchObject", "Sketch005")
sketch6.AttachmentSupport = (doc.getObject("XZ_Plane"), [""])
sketch6.MapMode = "FlatFace"
sketch6.addGeometry(Part.LineSegment(App.Vector(-3, 10.4, 0), App.Vector(0, 10.4, 0)), False)
sketch6.addGeometry(Part.LineSegment(App.Vector(0, 10.4, 0), App.Vector(0, 7.4, 0)), False)
sketch6.addGeometry(Part.ArcOfCircle(Part.Circle(App.Vector(-3, 7.4, 0), App.Vector(0, 0, 1), 3), math.radians(0), math.radians(90)), False)
sketch6.addGeometry(Part.LineSegment(App.Vector(-26, 7.4, 0), App.Vector(-26, 10.4, 0)), False)
sketch6.addGeometry(Part.LineSegment(App.Vector(-26, 10.4, 0), App.Vector(-23, 10.4, 0)), False)
sketch6.addGeometry(Part.ArcOfCircle(Part.Circle(App.Vector(-23, 7.4, 0), App.Vector(0, 0, 1), 3), math.radians(90), math.radians(180)), False)
sketch6.addGeometry(Part.LineSegment(App.Vector(0, -7.4, 0), App.Vector(0, -10.4, 0)), False)
sketch6.addGeometry(Part.LineSegment(App.Vector(0, -10.4, 0), App.Vector(-3, -10.4, 0)), False)
sketch6.addGeometry(Part.ArcOfCircle(Part.Circle(App.Vector(-3, -7.4, 0), App.Vector(0, 0, 1), 3), math.radians(-90), math.radians(0)), False)
sketch6.addGeometry(Part.LineSegment(App.Vector(-23, -10.4, 0), App.Vector(-26, -10.4, 0)), False)
sketch6.addGeometry(Part.LineSegment(App.Vector(-26, -10.4, 0), App.Vector(-26, -7.4, 0)), False)
sketch6.addGeometry(Part.ArcOfCircle(Part.Circle(App.Vector(-23, -7.4, 0), App.Vector(0, 0, 1), 3), math.radians(180), math.radians(270)), False)
sketch6.addConstraint(Sketcher.Constraint("Coincident", 0, 2, 1, 1))
sketch6.addConstraint(Sketcher.Constraint("Tangent", 1, 2, 2, 1))
sketch6.addConstraint(Sketcher.Constraint("Tangent", 2, 2, 0, 1))
sketch6.addConstraint(Sketcher.Constraint("Coincident", 3, 2, 4, 1))
sketch6.addConstraint(Sketcher.Constraint("Tangent", 4, 2, 5, 1))
sketch6.addConstraint(Sketcher.Constraint("Tangent", 5, 2, 3, 1))
sketch6.addConstraint(Sketcher.Constraint("Coincident", 6, 2, 7, 1))
sketch6.addConstraint(Sketcher.Constraint("Tangent", 7, 2, 8, 1))
sketch6.addConstraint(Sketcher.Constraint("Tangent", 8, 2, 6, 1))
sketch6.addConstraint(Sketcher.Constraint("Coincident", 9, 2, 10, 1))
sketch6.addConstraint(Sketcher.Constraint("Tangent", 10, 2, 11, 1))
sketch6.addConstraint(Sketcher.Constraint("Tangent", 11, 2, 9, 1))
sketch6.addConstraint(Sketcher.Constraint("Horizontal", 0))
sketch6.addConstraint(Sketcher.Constraint("Vertical", 1))
sketch6.addConstraint(Sketcher.Constraint("Vertical", 3))
sketch6.addConstraint(Sketcher.Constraint("Horizontal", 4))
sketch6.addConstraint(Sketcher.Constraint("Vertical", 6))
sketch6.addConstraint(Sketcher.Constraint("Horizontal", 7))
sketch6.addConstraint(Sketcher.Constraint("Horizontal", 9))
sketch6.addConstraint(Sketcher.Constraint("Vertical", 10))
sketch6.addConstraint(Sketcher.Constraint("Equal", 2, 5))
sketch6.addConstraint(Sketcher.Constraint("Equal", 5, 8))
sketch6.addConstraint(Sketcher.Constraint("Equal", 8, 11))
sketch6.addConstraint(Sketcher.Constraint("Symmetric", 0, 2, 6, 2, -1, 1))
sketch6.addConstraint(Sketcher.Constraint("Symmetric", 5, 3, 11, 3, -1))
sketch6.addConstraint(Sketcher.Constraint("PointOnObject", 0, 2, -2))
sketch6.addConstraint(Sketcher.Constraint("Horizontal", 2, 3, 5, 3))
sketch6.addConstraint(Sketcher.Constraint("Radius", 2, Q("3 mm")))
sketch6.addConstraint(Sketcher.Constraint("DistanceX", 5, 3, -1, 1, Q("23 mm")))
sketch6.addConstraint(Sketcher.Constraint("DistanceY", 8, 3, 2, 3, Q("14.85 mm")))
pocket1 = body.newObject("PartDesign::Pocket", "Pocket")
pocket1.Profile = sketch6
pocket1.Length = 5

doc.recompute()
